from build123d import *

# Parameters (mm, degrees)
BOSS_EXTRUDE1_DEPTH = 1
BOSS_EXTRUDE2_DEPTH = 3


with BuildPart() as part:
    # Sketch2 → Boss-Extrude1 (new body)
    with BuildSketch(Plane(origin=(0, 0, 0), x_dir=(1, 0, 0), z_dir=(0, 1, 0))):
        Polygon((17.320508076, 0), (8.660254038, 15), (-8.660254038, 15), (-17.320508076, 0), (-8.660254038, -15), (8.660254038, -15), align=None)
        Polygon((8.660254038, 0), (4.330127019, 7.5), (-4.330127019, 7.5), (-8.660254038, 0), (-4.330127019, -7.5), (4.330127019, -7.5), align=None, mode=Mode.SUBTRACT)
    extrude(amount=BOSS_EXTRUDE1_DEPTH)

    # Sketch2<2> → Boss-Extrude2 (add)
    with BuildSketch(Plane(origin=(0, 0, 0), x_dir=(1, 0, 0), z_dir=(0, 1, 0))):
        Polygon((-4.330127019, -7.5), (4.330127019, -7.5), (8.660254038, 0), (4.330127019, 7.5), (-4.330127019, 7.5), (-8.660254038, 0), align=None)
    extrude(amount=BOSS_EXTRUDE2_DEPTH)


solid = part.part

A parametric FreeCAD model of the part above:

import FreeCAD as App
import Part
import Sketcher

V = App.Vector
Q = App.Units.Quantity


def add_polygon(sketch, points):
    """Adds a closed chain of lines whose ends are joined by coincident constraints."""
    first, n = sketch.GeometryCount, len(points)
    for a, b in zip(points, points[1:] + points[:1]):
        sketch.addGeometry(Part.LineSegment(App.Vector(*a, 0), App.Vector(*b, 0)), False)
    for i in range(n):
        sketch.addConstraint(Sketcher.Constraint("Coincident", first + i, 2, first + (i + 1) % n, 1))

doc = App.newDocument("Part")
body = doc.addObject("PartDesign::Body", "Body")

# Sketch on XZ plane
sketch1 = body.newObject("Sketcher::SketchObject", "Sketch")
sketch1.AttachmentSupport = (doc.getObject("XZ_Plane"), [""])
sketch1.MapMode = "FlatFace"
add_polygon(sketch1, [(17, 0), (9, -15), (-9, -15), (-17, 0), (-9, 15), (9, 15)])  # lines 0-5
add_polygon(sketch1, [(4, -8), (9, 0), (4, 8), (-4, 8), (-9, 0), (-4, -8)])  # lines 6-11
sketch1.addConstraint(Sketcher.Constraint("Horizontal", 1))
sketch1.addConstraint(Sketcher.Constraint("Horizontal", 4))
sketch1.addConstraint(Sketcher.Constraint("Horizontal", 8))
sketch1.addConstraint(Sketcher.Constraint("Horizontal", 11))
sketch1.addConstraint(Sketcher.Constraint("Symmetric", 0, 2, 3, 2, -1, 1))
sketch1.addConstraint(Sketcher.Constraint("Symmetric", 2, 2, 5, 2, -1, 1))
sketch1.addConstraint(Sketcher.Constraint("Symmetric", 6, 2, 9, 2, -1, 1))
sketch1.addConstraint(Sketcher.Constraint("Symmetric", 7, 2, 10, 2, -1, 1))
sketch1.addConstraint(Sketcher.Constraint("PointOnObject", 2, 2, -1))
sketch1.addConstraint(Sketcher.Constraint("PointOnObject", 6, 2, -1))
sketch1.addConstraint(Sketcher.Constraint("Parallel", 2, 5))
sketch1.addConstraint(Sketcher.Constraint("Parallel", 3, 6))
sketch1.addConstraint(Sketcher.Constraint("Parallel", 5, 7))
sketch1.addConstraint(Sketcher.Constraint("Parallel", 6, 9))
sketch1.addConstraint(Sketcher.Constraint("Vertical", 1, 2, 3, 2))
sketch1.addConstraint(Sketcher.Constraint("Vertical", 4, 2, 6, 2))
sketch1.addConstraint(Sketcher.Constraint("Angle", 0, Q("-120 deg")))
sketch1.addConstraint(Sketcher.Constraint("DistanceY", 0, 2, -1, 1, 15.0))
sketch1.addConstraint(Sketcher.Constraint("DistanceY", 10, 2, 8, 2, 15.0))
sketch1.addConstraint(Sketcher.Constraint("DistanceX", 1, 2, 1, 1, 17.320508))
pad1 = body.newObject("PartDesign::Pad", "Pad")
pad1.Profile = sketch1
pad1.Length = 1
pad1.Reversed = True

# Sketch on XZ plane
sketch2 = body.newObject("Sketcher::SketchObject", "Sketch001")
sketch2.AttachmentSupport = (doc.getObject("XZ_Plane"), [""])
sketch2.MapMode = "FlatFace"
add_polygon(sketch2, [(-4, 8), (4, 8), (9, 0), (4, -8), (-4, -8), (-9, 0)])  # lines 0-5
sketch2.addConstraint(Sketcher.Constraint("Horizontal", 0))
sketch2.addConstraint(Sketcher.Constraint("Horizontal", 3))
sketch2.addConstraint(Sketcher.Constraint("Symmetric", 0, 2, 3, 2, -1, 1))
sketch2.addConstraint(Sketcher.Constraint("Symmetric", 1, 2, 4, 2, -1, 1))
sketch2.addConstraint(Sketcher.Constraint("PointOnObject", 1, 2, -1))
sketch2.addConstraint(Sketcher.Constraint("Parallel", 2, 5))
sketch2.addConstraint(Sketcher.Constraint("Vertical", 0, 2, 2, 2))
sketch2.addConstraint(Sketcher.Constraint("Angle", 1, Q("-60 deg")))
sketch2.addConstraint(Sketcher.Constraint("DistanceY", 2, 2, 0, 2, 15.0))
sketch2.addConstraint(Sketcher.Constraint("DistanceX", 0, 1, 0, 2, 8.660254))
pad2 = body.newObject("PartDesign::Pad", "Pad001")
pad2.Profile = sketch2
pad2.Length = 3
pad2.Reversed = True

doc.recompute()
